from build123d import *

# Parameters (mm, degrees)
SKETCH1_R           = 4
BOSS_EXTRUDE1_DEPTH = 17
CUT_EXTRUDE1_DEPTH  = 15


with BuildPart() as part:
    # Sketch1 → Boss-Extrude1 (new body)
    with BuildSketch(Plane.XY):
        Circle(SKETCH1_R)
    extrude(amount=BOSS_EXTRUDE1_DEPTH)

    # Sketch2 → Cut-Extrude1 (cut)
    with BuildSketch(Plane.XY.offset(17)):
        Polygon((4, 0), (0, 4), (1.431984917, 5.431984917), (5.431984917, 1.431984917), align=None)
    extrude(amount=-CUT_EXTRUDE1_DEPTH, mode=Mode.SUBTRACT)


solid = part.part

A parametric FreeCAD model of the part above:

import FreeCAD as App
import Part
import Sketcher
Q = App.Units.Quantity

doc = App.newDocument("Part")
params = doc.addObject("Spreadsheet::Sheet", "Params")
for row, (alias, value) in enumerate([
    ("sketch1_diameter", "8 mm"),
    ("pad1_length", "17 mm"),
    ("pocket1_length", "15 mm"),
], start=1):
    params.set(f"A{row}", alias)
    params.set(f"B{row}", "=" + value)
    params.setAlias(f"B{row}", alias)

body = doc.addObject("PartDesign::Body", "Body")

# Sketch on XY plane
sketch1 = body.newObject("Sketcher::SketchObject", "Sketch")
sketch1.AttachmentSupport = (doc.getObject("XY_Plane"), [""])
sketch1.MapMode = "FlatFace"
sketch1.addGeometry(Part.Circle(App.Vector(0, 0, 0), App.Vector(0, 0, 1), 4), False)
sketch1.addConstraint(Sketcher.Constraint("Coincident", 0, 3, -1, 1))
sketch1.addConstraint(Sketcher.Constraint("Diameter", 0, Q("8 mm")))
sketch1.setExpression("Constraints[1]", "Params.sketch1_diameter")
pad1 = body.newObject("PartDesign::Pad", "Pad")
pad1.Profile = sketch1
pad1.setExpression("Length", "Params.pad1_length")

# Sketch on XY plane
sketch2 = body.newObject("Sketcher::SketchObject", "Sketch001")
sketch2.AttachmentSupport = (doc.getObject("XY_Plane"), [""])
sketch2.MapMode = "FlatFace"
sketch2.AttachmentOffset = App.Placement(App.Vector(0, 0, 17), App.Rotation())
sketch2.addGeometry(Part.LineSegment(App.Vector(0, 4, 0), App.Vector(4, 0, 0)), False)
sketch2.addGeometry(Part.LineSegment(App.Vector(4, 0, 0), App.Vector(5.4, 1.4, 0)), False)
sketch2.addGeometry(Part.LineSegment(App.Vector(5.4, 1.4, 0), App.Vector(1.4, 5.4, 0)), False)
sketch2.addGeometry(Part.LineSegment(App.Vector(1.4, 5.4, 0), App.Vector(0, 4, 0)), False)
sketch2.addConstraint(Sketcher.Constraint("Coincident", 0, 2, 1, 1))
sketch2.addConstraint(Sketcher.Constraint("Coincident", 1, 2, 2, 1))
sketch2.addConstraint(Sketcher.Constraint("Coincident", 2, 2, 3, 1))
sketch2.addConstraint(Sketcher.Constraint("Coincident", 3, 2, 0, 1))
sketch2.addConstraint(Sketcher.Constraint("PointOnObject", 0, 2, -1))
sketch2.addConstraint(Sketcher.Constraint("PointOnObject", 3, 2, -2))
sketch2.addConstraint(Sketcher.Constraint("Perpendicular", 0, 1))
sketch2.addConstraint(Sketcher.Constraint("Perpendicular", 1, 2))
sketch2.addConstraint(Sketcher.Constraint("Perpendicular", 2, 3))
sketch2.addConstraint(Sketcher.Constraint("Angle", 0, Q("-45 deg")))
sketch2.addConstraint(Sketcher.Constraint("DistanceX", -1, 1, 0, 2, Q("4 mm")))
sketch2.addConstraint(Sketcher.Constraint("Distance", 1, Q("2.025132 mm")))
pocket1 = body.newObject("PartDesign::Pocket", "Pocket")
pocket1.Profile = sketch2
pocket1.setExpression("Length", "Params.pocket1_length")

doc.recompute()
